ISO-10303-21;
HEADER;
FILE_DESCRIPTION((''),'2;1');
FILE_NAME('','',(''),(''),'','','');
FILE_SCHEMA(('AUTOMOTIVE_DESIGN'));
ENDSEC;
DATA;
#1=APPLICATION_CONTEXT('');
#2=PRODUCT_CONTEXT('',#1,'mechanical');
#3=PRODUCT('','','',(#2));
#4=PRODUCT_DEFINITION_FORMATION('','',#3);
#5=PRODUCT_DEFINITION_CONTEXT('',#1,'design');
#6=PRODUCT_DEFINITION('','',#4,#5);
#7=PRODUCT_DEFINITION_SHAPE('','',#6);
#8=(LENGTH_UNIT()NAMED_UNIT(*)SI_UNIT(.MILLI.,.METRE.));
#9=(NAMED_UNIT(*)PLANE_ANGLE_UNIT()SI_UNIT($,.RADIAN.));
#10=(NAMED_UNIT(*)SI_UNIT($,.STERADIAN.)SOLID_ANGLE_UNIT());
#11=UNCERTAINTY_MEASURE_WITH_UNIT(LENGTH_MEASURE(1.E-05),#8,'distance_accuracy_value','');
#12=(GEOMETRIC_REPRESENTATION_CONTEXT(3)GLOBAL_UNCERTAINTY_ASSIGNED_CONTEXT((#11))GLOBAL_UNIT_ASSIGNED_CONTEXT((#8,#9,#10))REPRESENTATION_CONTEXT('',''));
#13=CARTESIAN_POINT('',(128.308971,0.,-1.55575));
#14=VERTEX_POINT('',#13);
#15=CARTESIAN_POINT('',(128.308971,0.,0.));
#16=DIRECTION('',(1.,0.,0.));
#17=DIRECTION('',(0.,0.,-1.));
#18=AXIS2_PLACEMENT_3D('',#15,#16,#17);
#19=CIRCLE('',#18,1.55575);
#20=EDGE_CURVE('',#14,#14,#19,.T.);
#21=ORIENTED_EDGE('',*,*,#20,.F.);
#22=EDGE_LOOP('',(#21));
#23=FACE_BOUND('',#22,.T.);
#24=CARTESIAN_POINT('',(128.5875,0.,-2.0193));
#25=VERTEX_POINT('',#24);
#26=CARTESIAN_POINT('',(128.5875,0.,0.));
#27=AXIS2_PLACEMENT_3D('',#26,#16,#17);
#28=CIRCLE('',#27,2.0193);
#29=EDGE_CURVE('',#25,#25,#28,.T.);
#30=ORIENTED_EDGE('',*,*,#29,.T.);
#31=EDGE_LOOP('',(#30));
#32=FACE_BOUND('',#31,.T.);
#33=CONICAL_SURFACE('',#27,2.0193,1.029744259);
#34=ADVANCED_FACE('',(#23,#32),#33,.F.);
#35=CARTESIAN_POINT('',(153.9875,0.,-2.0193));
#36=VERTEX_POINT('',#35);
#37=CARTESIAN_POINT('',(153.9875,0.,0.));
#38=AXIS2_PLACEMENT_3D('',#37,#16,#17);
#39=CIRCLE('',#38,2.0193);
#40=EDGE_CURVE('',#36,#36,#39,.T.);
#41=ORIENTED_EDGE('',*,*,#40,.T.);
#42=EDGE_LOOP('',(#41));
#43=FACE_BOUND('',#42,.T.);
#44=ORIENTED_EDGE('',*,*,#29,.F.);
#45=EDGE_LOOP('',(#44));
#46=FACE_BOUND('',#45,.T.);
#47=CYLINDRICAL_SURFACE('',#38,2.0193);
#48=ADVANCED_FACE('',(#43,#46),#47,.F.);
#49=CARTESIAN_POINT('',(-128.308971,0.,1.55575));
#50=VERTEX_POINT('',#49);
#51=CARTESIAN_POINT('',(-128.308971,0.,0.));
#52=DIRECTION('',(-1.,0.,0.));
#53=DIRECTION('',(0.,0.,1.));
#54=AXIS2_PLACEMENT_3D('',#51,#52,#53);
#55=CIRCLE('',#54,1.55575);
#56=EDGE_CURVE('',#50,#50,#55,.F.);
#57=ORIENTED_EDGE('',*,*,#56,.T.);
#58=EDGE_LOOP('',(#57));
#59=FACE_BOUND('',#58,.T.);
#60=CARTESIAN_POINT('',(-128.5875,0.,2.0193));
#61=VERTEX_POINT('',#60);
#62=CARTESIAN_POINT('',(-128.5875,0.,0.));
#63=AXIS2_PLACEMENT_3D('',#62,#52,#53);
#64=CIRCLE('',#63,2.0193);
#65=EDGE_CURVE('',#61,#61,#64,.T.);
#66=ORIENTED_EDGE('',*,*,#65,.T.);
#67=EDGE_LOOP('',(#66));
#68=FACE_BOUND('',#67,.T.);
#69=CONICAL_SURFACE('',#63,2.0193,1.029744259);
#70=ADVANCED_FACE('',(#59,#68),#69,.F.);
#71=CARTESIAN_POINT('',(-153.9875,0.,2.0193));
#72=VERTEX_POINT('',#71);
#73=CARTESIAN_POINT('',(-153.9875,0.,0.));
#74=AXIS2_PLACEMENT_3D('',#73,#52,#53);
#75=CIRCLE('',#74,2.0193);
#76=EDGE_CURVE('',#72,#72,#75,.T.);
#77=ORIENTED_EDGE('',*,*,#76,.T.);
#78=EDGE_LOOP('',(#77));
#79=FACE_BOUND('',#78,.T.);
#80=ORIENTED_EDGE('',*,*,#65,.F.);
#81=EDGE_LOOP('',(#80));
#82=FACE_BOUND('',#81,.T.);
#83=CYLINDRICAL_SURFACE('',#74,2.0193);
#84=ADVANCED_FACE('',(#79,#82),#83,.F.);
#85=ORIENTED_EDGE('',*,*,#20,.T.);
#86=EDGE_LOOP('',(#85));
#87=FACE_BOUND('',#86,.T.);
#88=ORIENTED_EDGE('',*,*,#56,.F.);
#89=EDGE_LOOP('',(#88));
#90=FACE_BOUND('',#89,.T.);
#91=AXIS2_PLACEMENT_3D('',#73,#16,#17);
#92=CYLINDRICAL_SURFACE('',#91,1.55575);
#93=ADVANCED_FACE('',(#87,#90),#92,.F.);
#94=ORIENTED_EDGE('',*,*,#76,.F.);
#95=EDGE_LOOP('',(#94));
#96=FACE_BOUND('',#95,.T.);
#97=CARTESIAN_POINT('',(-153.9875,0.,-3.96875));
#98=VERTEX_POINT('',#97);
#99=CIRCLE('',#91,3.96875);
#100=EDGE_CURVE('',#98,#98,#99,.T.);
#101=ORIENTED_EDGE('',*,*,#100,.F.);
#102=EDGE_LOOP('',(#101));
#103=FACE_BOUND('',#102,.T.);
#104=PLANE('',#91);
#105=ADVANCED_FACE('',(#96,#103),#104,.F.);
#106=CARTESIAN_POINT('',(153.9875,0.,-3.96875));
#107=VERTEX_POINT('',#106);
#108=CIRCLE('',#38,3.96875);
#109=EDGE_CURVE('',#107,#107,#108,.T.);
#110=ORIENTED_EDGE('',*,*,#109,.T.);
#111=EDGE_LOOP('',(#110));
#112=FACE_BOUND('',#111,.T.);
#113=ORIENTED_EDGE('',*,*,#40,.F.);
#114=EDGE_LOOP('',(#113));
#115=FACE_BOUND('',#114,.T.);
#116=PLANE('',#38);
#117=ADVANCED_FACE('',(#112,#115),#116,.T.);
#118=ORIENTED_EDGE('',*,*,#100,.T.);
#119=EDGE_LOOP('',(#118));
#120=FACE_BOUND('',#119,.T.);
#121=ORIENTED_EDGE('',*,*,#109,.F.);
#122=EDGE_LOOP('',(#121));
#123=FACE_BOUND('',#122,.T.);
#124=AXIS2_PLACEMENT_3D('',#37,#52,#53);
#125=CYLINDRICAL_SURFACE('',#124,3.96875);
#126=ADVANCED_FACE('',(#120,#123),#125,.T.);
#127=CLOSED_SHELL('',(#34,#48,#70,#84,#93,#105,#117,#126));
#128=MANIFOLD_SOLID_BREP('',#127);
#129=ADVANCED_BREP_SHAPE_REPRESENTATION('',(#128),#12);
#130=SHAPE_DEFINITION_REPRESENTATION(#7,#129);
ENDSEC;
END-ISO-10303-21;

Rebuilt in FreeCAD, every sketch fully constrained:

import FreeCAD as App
import Part
import Sketcher

V = App.Vector
Q = App.Units.Quantity

doc = App.newDocument("Part")
params = doc.addObject("Spreadsheet::Sheet", "Params")
for row, (alias, value) in enumerate([
    ("sketch1_diameter", "0.3125 in"),
    ("pad1_length", "12.125 in"),
    ("sketch2_width", "1 in"),
    ("groove_angle", "360 deg"),
], start=1):
    params.set(f"A{row}", alias)
    params.set(f"B{row}", "=" + value)
    params.setAlias(f"B{row}", alias)

body = doc.addObject("PartDesign::Body", "Body")

# Sketch on YZ plane
sketch1 = body.newObject("Sketcher::SketchObject", "Sketch")
sketch1.AttachmentSupport = (doc.getObject("YZ_Plane"), [""])
sketch1.MapMode = "FlatFace"
sketch1.addGeometry(Part.Circle(V(0, 0, 0), V(0, 0, 1), 3.96875), False)
sketch1.addConstraint(Sketcher.Constraint("Coincident", 0, 3, -1, 1))
sketch1.addConstraint(Sketcher.Constraint("Diameter", 0, Q("0.3125 in")))
sketch1.setExpression("Constraints[1]", "Params.sketch1_diameter")
pad1 = body.newObject("PartDesign::Pad", "Pad")
pad1.Profile = sketch1
pad1.setExpression("Length", "Params.pad1_length")
pad1.Midplane = True

# Sketch on XZ plane
sketch2 = body.newObject("Sketcher::SketchObject", "Sketch001")
sketch2.AttachmentSupport = (doc.getObject("XZ_Plane"), [""])
sketch2.MapMode = "FlatFace"
sketch2.addGeometry(Part.LineSegment(V(-127.374182, 0, 0), V(-153.9875, 0, 0)), False)
sketch2.addGeometry(Part.LineSegment(V(-153.9875, 0, 0), V(-153.9875, 2.0193, 0)), False)
sketch2.addGeometry(Part.LineSegment(V(-153.9875, 2.0193, 0), V(-128.5875, 2.0193, 0)), False)
sketch2.addGeometry(Part.LineSegment(V(-128.5875, 2.0193, 0), V(-127.374182, 0, 0)), False)
sketch2.addConstraint(Sketcher.Constraint("Coincident", 0, 2, 1, 1))
sketch2.addConstraint(Sketcher.Constraint("Coincident", 1, 2, 2, 1))
sketch2.addConstraint(Sketcher.Constraint("Coincident", 2, 2, 3, 1))
sketch2.addConstraint(Sketcher.Constraint("Coincident", 3, 2, 0, 1))
sketch2.addConstraint(Sketcher.Constraint("Horizontal", 0))
sketch2.addConstraint(Sketcher.Constraint("Vertical", 1))
sketch2.addConstraint(Sketcher.Constraint("Horizontal", 2))
sketch2.addConstraint(Sketcher.Constraint("PointOnObject", 0, 2, -1))
sketch2.addConstraint(Sketcher.Constraint("DistanceX", 2, 1, 2, 2, Q("1 in")))
sketch2.addConstraint(Sketcher.Constraint("Angle", 3, Q("-59 deg")))
sketch2.addConstraint(Sketcher.Constraint("DistanceY", 1, 1, 1, 2, Q("0.0795 in")))
sketch2.addConstraint(Sketcher.Constraint("DistanceX", 0, 2, -1, 1, Q("6.0625 in")))
sketch2.setExpression("Constraints[8]", "Params.sketch2_width")
groove = body.newObject("PartDesign::Groove", "Groove")
groove.Profile = sketch2
groove.ReferenceAxis = (sketch2, ["H_Axis"])
groove.setExpression("Angle", "Params.groove_angle")

# Sketch on YZ plane
sketch3 = body.newObject("Sketcher::SketchObject", "Sketch002")
sketch3.AttachmentSupport = (doc.getObject("YZ_Plane"), [""])
sketch3.MapMode = "FlatFace"
sketch3.AttachmentOffset = App.Placement(V(0, 0, 6.0625 * 25.4), App.Rotation())
sketch3.addGeometry(Part.Circle(V(0, 0, 0), V(0, 0, 1), 1.55575), False)
sketch3.addConstraint(Sketcher.Constraint("Coincident", 0, 3, -1, 1))
sketch3.addConstraint(Sketcher.Constraint("Diameter", 0, Q("0.1225 in")))
pocket1 = body.newObject("PartDesign::Pocket", "Pocket")
pocket1.Profile = sketch3
pocket1.Type = "ThroughAll"
doc.recompute()

mirrored = body.newObject("PartDesign::Mirrored", "Mirrored")
mirrored.Originals = [groove]
mirrored.MirrorPlane = (doc.getObject("YZ_Plane"), [""])
body.Tip = mirrored

doc.recompute()
